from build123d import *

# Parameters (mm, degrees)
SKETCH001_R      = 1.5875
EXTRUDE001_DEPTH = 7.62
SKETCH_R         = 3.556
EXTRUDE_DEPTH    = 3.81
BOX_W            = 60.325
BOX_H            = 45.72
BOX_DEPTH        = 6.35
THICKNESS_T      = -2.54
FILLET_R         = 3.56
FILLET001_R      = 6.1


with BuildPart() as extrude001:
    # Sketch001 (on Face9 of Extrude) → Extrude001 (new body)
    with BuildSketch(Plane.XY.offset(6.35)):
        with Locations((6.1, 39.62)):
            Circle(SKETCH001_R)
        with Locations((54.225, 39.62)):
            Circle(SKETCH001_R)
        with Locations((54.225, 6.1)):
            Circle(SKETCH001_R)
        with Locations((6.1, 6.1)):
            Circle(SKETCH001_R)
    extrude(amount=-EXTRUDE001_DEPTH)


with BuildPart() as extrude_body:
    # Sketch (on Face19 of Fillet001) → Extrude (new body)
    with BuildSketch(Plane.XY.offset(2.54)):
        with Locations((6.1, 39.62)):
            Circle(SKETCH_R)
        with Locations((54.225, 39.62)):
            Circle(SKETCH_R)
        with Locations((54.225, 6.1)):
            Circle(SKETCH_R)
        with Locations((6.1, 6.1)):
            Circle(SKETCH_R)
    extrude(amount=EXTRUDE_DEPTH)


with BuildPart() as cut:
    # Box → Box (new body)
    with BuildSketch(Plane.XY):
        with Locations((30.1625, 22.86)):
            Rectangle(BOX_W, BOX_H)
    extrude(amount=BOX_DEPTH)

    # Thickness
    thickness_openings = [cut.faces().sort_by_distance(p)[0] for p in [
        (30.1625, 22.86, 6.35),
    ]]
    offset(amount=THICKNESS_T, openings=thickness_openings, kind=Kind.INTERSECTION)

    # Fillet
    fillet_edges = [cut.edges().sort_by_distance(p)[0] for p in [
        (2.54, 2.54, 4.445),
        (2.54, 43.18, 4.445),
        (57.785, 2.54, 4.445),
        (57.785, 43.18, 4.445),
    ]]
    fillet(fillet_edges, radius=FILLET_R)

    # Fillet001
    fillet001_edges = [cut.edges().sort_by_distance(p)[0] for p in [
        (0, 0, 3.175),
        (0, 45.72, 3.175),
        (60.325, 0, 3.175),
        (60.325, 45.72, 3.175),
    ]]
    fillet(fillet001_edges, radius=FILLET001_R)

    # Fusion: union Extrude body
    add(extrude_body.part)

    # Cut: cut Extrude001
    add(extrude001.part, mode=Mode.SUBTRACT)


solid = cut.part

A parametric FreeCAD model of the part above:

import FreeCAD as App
import Part
import Sketcher

V = App.Vector
Q = App.Units.Quantity


def edges_at(feature, points):
    """Names of the edges that pass closest to the given points."""
    edges = feature.Shape.Edges
    near = lambda p: min(range(len(edges)), key=lambda i: edges[i].distToShape(Part.Vertex(*p))[0])
    return sorted({f"Edge{near(p) + 1}" for p in points})


def faces_at(feature, points):
    """Names of the faces that lie closest to the given points."""
    faces = feature.Shape.Faces
    near = lambda p: min(range(len(faces)), key=lambda i: faces[i].distToShape(Part.Vertex(*p))[0])
    return sorted({f"Face{near(p) + 1}" for p in points})

doc = App.newDocument("Part")
body = doc.addObject("PartDesign::Body", "Body")
body.AllowCompound = True

# Sketch on XY plane
sketch1 = body.newObject("Sketcher::SketchObject", "Sketch")
sketch1.AttachmentSupport = (doc.getObject("XY_Plane"), [""])
sketch1.MapMode = "FlatFace"
sketch1.AttachmentOffset = App.Placement(V(0, 0, 0.25 * 25.4), App.Rotation())
sketch1.addGeometry([
    Part.Circle(V(6.1, 39.6, 0), V(0, 0, 1), 1.6),
    Part.Circle(V(54.2, 39.6, 0), V(0, 0, 1), 1.6),
    Part.Circle(V(54.2, 6.1, 0), V(0, 0, 1), 1.6),
    Part.Circle(V(6.1, 6.1, 0), V(0, 0, 1), 1.6),
], False)
sketch1.addConstraint([
    Sketcher.Constraint("Equal", 0, 1),
    Sketcher.Constraint("Equal", 1, 2),
    Sketcher.Constraint("Equal", 2, 3),
    Sketcher.Constraint("Horizontal", 0, 3, 1, 3),
    Sketcher.Constraint("Horizontal", 2, 3, 3, 3),
    Sketcher.Constraint("Vertical", 1, 3, 2, 3),
    Sketcher.Constraint("Vertical", 0, 3, 3, 3),
    Sketcher.Constraint("Diameter", 0, Q("0.125 in")),
    Sketcher.Constraint("DistanceX", -1, 1, 0, 3, Q("6.1 mm")),
    Sketcher.Constraint("DistanceY", -1, 1, 0, 3, Q("39.62 mm")),
    Sketcher.Constraint("DistanceX", -1, 1, 1, 3, Q("54.225 mm")),
    Sketcher.Constraint("DistanceY", -1, 1, 2, 3, Q("6.1 mm")),
])
pad1 = body.newObject("PartDesign::Pad", "Pad")
pad1.Profile = sketch1
pad1.Length = Q("0.3 in")
pad1.Reversed = True
body2 = doc.addObject("PartDesign::Body", "Body001")
body2.AllowCompound = True

# Sketch on XY plane
sketch2 = body2.newObject("Sketcher::SketchObject", "Sketch001")
sketch2.AttachmentSupport = (doc.getObject("XY_Plane001"), [""])
sketch2.MapMode = "FlatFace"
sketch2.AttachmentOffset = App.Placement(V(0, 0, 0.1 * 25.4), App.Rotation())
sketch2.addGeometry([
    Part.Circle(V(6.1, 39.6, 0), V(0, 0, 1), 3.6),
    Part.Circle(V(54.2, 39.6, 0), V(0, 0, 1), 3.6),
    Part.Circle(V(54.2, 6.1, 0), V(0, 0, 1), 3.6),
    Part.Circle(V(6.1, 6.1, 0), V(0, 0, 1), 3.6),
], False)
sketch2.addConstraint([
    Sketcher.Constraint("Equal", 0, 1),
    Sketcher.Constraint("Equal", 1, 2),
    Sketcher.Constraint("Equal", 2, 3),
    Sketcher.Constraint("Horizontal", 0, 3, 1, 3),
    Sketcher.Constraint("Horizontal", 2, 3, 3, 3),
    Sketcher.Constraint("Vertical", 1, 3, 2, 3),
    Sketcher.Constraint("Vertical", 0, 3, 3, 3),
    Sketcher.Constraint("Diameter", 0, Q("0.28 in")),
    Sketcher.Constraint("DistanceX", -1, 1, 0, 3, Q("6.1 mm")),
    Sketcher.Constraint("DistanceY", -1, 1, 0, 3, Q("39.62 mm")),
    Sketcher.Constraint("DistanceX", -1, 1, 1, 3, Q("54.225 mm")),
    Sketcher.Constraint("DistanceY", -1, 1, 2, 3, Q("6.1 mm")),
])
pad2 = body2.newObject("PartDesign::Pad", "Pad001")
pad2.Profile = sketch2
pad2.Length = Q("0.15 in")
body3 = doc.addObject("PartDesign::Body", "Body002")

# Sketch on XY plane
sketch3 = body3.newObject("Sketcher::SketchObject", "Sketch002")
sketch3.AttachmentSupport = (doc.getObject("XY_Plane002"), [""])
sketch3.MapMode = "FlatFace"
sketch3.addGeometry([
    Part.LineSegment(V(0, 46, 0), V(0, 0, 0)),
    Part.LineSegment(V(0, 0, 0), V(60, 0, 0)),
    Part.LineSegment(V(60, 0, 0), V(60, 46, 0)),
    Part.LineSegment(V(60, 46, 0), V(0, 46, 0)),
], False)
sketch3.addConstraint([
    Sketcher.Constraint("Coincident", 0, 2, 1, 1),
    Sketcher.Constraint("Coincident", 1, 2, 2, 1),
    Sketcher.Constraint("Coincident", 2, 2, 3, 1),
    Sketcher.Constraint("Coincident", 3, 2, 0, 1),
    Sketcher.Constraint("Vertical", 0),
    Sketcher.Constraint("Horizontal", 1),
    Sketcher.Constraint("Vertical", 2),
    Sketcher.Constraint("Horizontal", 3),
    Sketcher.Constraint("Coincident", 0, 2, -1, 1),
    Sketcher.Constraint("DistanceY", 0, 2, 0, 1, Q("1.8 in")),
    Sketcher.Constraint("DistanceX", 1, 1, 1, 2, Q("2.375 in")),
])
pad3 = body3.newObject("PartDesign::Pad", "Pad002")
pad3.Profile = sketch3
pad3.Length = Q("0.25 in")
doc.recompute()

thickness = body3.newObject("PartDesign::Thickness", "Thickness")
thickness.Base = (pad3, faces_at(pad3, [(30.163, 22.86, 6.35)]))
thickness.Value = Q("0.1 in")
thickness.Reversed = True
thickness.Join = "Intersection"
doc.recompute()

fillet = body3.newObject("PartDesign::Fillet", "Fillet")
fillet.Base = (thickness, edges_at(thickness, [
    (2.54, 2.54, 4.445),
    (2.54, 43.18, 4.445),
    (57.785, 2.54, 4.445),
    (57.785, 43.18, 4.445),
]))
fillet.Radius = 3.56
doc.recompute()

fillet2 = body3.newObject("PartDesign::Fillet", "Fillet001")
fillet2.Base = (fillet, edges_at(fillet, [
    (0, 0, 3.175),
    (0, 45.72, 3.175),
    (60.325, 0, 3.175),
    (60.325, 45.72, 3.175),
]))
fillet2.Radius = 6.1
doc.recompute()

boolean = body3.newObject("PartDesign::Boolean", "Boolean")
boolean.Type = "Fuse"
boolean.addObjects([body2])
doc.recompute()

boolean2 = body3.newObject("PartDesign::Boolean", "Boolean001")
boolean2.Type = "Cut"
boolean2.addObjects([body])

doc.recompute()
